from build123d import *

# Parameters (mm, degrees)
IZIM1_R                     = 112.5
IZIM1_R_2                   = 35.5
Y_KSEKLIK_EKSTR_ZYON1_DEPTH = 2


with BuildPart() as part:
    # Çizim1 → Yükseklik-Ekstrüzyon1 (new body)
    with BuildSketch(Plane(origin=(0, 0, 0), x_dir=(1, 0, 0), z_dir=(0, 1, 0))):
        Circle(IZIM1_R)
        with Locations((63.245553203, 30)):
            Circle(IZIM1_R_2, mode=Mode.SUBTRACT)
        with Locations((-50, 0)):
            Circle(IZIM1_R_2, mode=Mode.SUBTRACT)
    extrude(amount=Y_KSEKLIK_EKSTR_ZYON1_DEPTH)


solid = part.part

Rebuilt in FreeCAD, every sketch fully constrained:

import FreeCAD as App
import Part
import Sketcher
from FreeCAD import Vector
Q = App.Units.Quantity

doc = App.newDocument("Part")
params = doc.addObject("Spreadsheet::Sheet", "Params")
for row, (alias, value) in enumerate([
    ("sketch1_diameter", "225 mm"),
    ("sketch1_diameter2", "71 mm"),
    ("pad1_length", "2 mm"),
], start=1):
    params.set(f"A{row}", alias)
    params.set(f"B{row}", "=" + value)
    params.setAlias(f"B{row}", alias)

body = doc.addObject("PartDesign::Body", "Body")

# Sketch on XZ plane
sketch1 = doc.addObject("Sketcher::SketchObject", "Sketch")
body.addObject(sketch1)
sketch1.AttachmentSupport = (doc.XZ_Plane, [""])
sketch1.MapMode = "FlatFace"
sketch1.addGeometry([
    Part.Circle(Vector(0, 0, 0), Vector(0, 0, 1), 112),
    Part.Circle(Vector(-50, 0, 0), Vector(0, 0, 1), 36),
    Part.Circle(Vector(63, -30, 0), Vector(0, 0, 1), 36),
], False)
sketch1.addConstraint([
    Sketcher.Constraint("Coincident", 0, 3, -1, 1),
    Sketcher.Constraint("Equal", 1, 2),
    Sketcher.Constraint("PointOnObject", 1, 3, -1),
    Sketcher.Constraint("Diameter", 0, Q("225 mm")),
    Sketcher.Constraint("Diameter", 1, Q("71 mm")),
    Sketcher.Constraint("DistanceX", 1, 3, -1, 1, Q("50 mm")),
    Sketcher.Constraint("DistanceY", 2, 3, -1, 1, Q("30 mm")),
    Sketcher.Constraint("DistanceX", -1, 1, 2, 3, Q("63.245553 mm")),
])
sketch1.setExpression("Constraints[3]", "Params.sketch1_diameter")
sketch1.setExpression("Constraints[4]", "Params.sketch1_diameter2")
pad1 = doc.addObject("PartDesign::Pad", "Pad")
body.addObject(pad1)
pad1.Profile = sketch1
pad1.setExpression("Length", "Params.pad1_length")
pad1.Reversed = True

doc.recompute()
